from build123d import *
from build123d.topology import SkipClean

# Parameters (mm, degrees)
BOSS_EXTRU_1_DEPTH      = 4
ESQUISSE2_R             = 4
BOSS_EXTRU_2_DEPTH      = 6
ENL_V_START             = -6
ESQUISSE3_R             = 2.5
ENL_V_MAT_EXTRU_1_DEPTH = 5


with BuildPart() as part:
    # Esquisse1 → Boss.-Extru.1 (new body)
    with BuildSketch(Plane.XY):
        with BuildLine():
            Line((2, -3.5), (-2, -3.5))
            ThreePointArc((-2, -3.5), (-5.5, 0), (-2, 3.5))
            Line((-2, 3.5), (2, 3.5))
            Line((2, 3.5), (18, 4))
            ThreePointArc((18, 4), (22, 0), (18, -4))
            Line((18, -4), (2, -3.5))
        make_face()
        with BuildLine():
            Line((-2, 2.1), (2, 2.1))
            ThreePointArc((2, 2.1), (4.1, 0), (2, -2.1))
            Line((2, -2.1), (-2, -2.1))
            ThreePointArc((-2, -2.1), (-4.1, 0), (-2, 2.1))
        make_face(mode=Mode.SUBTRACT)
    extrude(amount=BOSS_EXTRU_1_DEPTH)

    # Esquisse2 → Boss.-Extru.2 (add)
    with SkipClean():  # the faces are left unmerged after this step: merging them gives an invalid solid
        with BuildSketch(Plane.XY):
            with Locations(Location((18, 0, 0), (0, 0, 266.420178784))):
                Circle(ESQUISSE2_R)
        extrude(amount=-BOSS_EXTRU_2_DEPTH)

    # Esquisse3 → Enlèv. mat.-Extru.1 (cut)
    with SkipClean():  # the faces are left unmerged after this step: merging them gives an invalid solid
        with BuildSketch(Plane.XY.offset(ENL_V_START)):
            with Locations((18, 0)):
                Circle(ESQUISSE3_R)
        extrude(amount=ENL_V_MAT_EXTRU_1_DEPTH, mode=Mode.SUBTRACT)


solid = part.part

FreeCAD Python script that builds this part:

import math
import FreeCAD as App
import Part
import Sketcher
from FreeCAD import Vector

doc = App.newDocument("Part")
params = doc.addObject("Spreadsheet::Sheet", "Params")
for row, (alias, value) in enumerate([
    ("sketch1_radius", "4 mm"),
    ("sketch1_radius2", "3.5 mm"),
    ("sketch1_radius3", "2.1 mm"),
    ("sketch1_width", "4 mm"),
    ("pad1_length", "4 mm"),
    ("sketch2_diameter", "8 mm"),
    ("pad2_length", "6 mm"),
    ("sketch3_diameter", "5 mm"),
    ("pocket1_length", "5 mm"),
], start=1):
    params.set(f"A{row}", alias)
    params.set(f"B{row}", "=" + value)
    params.setAlias(f"B{row}", alias)

body = doc.addObject("PartDesign::Body", "Body")

sketch1 = doc.addObject("Sketcher::SketchObject", "Sketch")
body.addObject(sketch1)
sketch1.AttachmentSupport = (doc.XY_Plane, [""])
sketch1.MapMode = "FlatFace"
sketch1.addGeometry([
    Part.LineSegment(Vector(-2, -3.5, 0), Vector(2, -3.5, 0)),
    Part.LineSegment(Vector(2, -3.5, 0), Vector(18, -4, 0)),
    Part.ArcOfCircle(Part.Circle(Vector(18, 0, 0), Vector(0, 0, 1), 4), math.radians(-90), math.radians(90)),
    Part.LineSegment(Vector(18, 4, 0), Vector(2, 3.5, 0)),
    Part.LineSegment(Vector(2, 3.5, 0), Vector(-2, 3.5, 0)),
    Part.ArcOfCircle(Part.Circle(Vector(-2, 0, 0), Vector(0, 0, 1), 3.5), math.radians(90), math.radians(270)),
    Part.LineSegment(Vector(-2, 2.1, 0), Vector(2, 2.1, 0)),
    Part.ArcOfCircle(Part.Circle(Vector(2, 0, 0), Vector(0, 0, 1), 2.1), math.radians(-90), math.radians(90)),
    Part.LineSegment(Vector(2, -2.1, 0), Vector(-2, -2.1, 0)),
    Part.ArcOfCircle(Part.Circle(Vector(-2, 0, 0), Vector(0, 0, 1), 2.1), math.radians(90), math.radians(270)),
], False)
sketch1.addConstraint([
    Sketcher.Constraint("Coincident", 0, 2, 1, 1),
    Sketcher.Constraint("Coincident", 1, 2, 2, 1),
    Sketcher.Constraint("Coincident", 2, 2, 3, 1),
    Sketcher.Constraint("Coincident", 3, 2, 4, 1),
    Sketcher.Constraint("Tangent", 4, 2, 5, 1),
    Sketcher.Constraint("Tangent", 5, 2, 0, 1),
    Sketcher.Constraint("Tangent", 6, 2, 7, 2),
    Sketcher.Constraint("Tangent", 7, 1, 8, 1),
    Sketcher.Constraint("Tangent", 8, 2, 9, 2),
    Sketcher.Constraint("Tangent", 9, 1, 6, 1),
    Sketcher.Constraint("Horizontal", 0),
    Sketcher.Constraint("Horizontal", 4),
    Sketcher.Constraint("Horizontal", 6),
    Sketcher.Constraint("Horizontal", 8),
    Sketcher.Constraint("Coincident", 9, 3, 5, 3),
    Sketcher.Constraint("Symmetric", 5, 3, 7, 3, -1, 1),
    Sketcher.Constraint("Symmetric", 1, 2, 2, 2, -1),
    Sketcher.Constraint("Vertical", 7, 3, 0, 2),
    Sketcher.Constraint("Vertical", 2, 3, 1, 2),
    Sketcher.Constraint("Vertical", 0, 2, 3, 2),
    Sketcher.Constraint("Radius", 2, 4.0),
    Sketcher.Constraint("Radius", 5, 3.5),
    Sketcher.Constraint("Radius", 7, 2.1),
    Sketcher.Constraint("DistanceX", 0, 1, 0, 2, 4.0),
    Sketcher.Constraint("DistanceX", -1, 1, 2, 3, 18.0),
])
sketch1.setExpression("Constraints[20]", "Params.sketch1_radius")
sketch1.setExpression("Constraints[21]", "Params.sketch1_radius2")
sketch1.setExpression("Constraints[22]", "Params.sketch1_radius3")
sketch1.setExpression("Constraints[23]", "Params.sketch1_width")
pad1 = doc.addObject("PartDesign::Pad", "Pad")
body.addObject(pad1)
pad1.Profile = sketch1
pad1.setExpression("Length", "Params.pad1_length")

sketch2 = doc.addObject("Sketcher::SketchObject", "Sketch001")
body.addObject(sketch2)
sketch2.AttachmentSupport = (doc.XY_Plane, [""])
sketch2.MapMode = "FlatFace"
sketch2.addGeometry(Part.Circle(Vector(18, 0, 0), Vector(0, 0, 1), 4), False)
sketch2.addConstraint([
    Sketcher.Constraint("PointOnObject", 0, 3, -1),
    Sketcher.Constraint("Diameter", 0, 8.0),
    Sketcher.Constraint("DistanceX", -1, 1, 0, 3, 18.0),
])
sketch2.setExpression("Constraints[1]", "Params.sketch2_diameter")
pad2 = doc.addObject("PartDesign::Pad", "Pad001")
body.addObject(pad2)
pad2.Profile = sketch2
pad2.setExpression("Length", "Params.pad2_length")
pad2.Reversed = True

sketch3 = doc.addObject("Sketcher::SketchObject", "Sketch002")
body.addObject(sketch3)
sketch3.AttachmentSupport = (doc.XY_Plane, [""])
sketch3.MapMode = "FlatFace"
sketch3.AttachmentOffset = App.Placement(Vector(0, 0, -6), App.Rotation())
sketch3.addGeometry(Part.Circle(Vector(18, 0, 0), Vector(0, 0, 1), 2.5), False)
sketch3.addConstraint([
    Sketcher.Constraint("PointOnObject", 0, 3, -1),
    Sketcher.Constraint("Diameter", 0, 5.0),
    Sketcher.Constraint("DistanceX", -1, 1, 0, 3, 18.0),
])
sketch3.setExpression("Constraints[1]", "Params.sketch3_diameter")
pocket1 = doc.addObject("PartDesign::Pocket", "Pocket")
body.addObject(pocket1)
pocket1.Profile = sketch3
pocket1.setExpression("Length", "Params.pocket1_length")
pocket1.Reversed = True

doc.recompute()
